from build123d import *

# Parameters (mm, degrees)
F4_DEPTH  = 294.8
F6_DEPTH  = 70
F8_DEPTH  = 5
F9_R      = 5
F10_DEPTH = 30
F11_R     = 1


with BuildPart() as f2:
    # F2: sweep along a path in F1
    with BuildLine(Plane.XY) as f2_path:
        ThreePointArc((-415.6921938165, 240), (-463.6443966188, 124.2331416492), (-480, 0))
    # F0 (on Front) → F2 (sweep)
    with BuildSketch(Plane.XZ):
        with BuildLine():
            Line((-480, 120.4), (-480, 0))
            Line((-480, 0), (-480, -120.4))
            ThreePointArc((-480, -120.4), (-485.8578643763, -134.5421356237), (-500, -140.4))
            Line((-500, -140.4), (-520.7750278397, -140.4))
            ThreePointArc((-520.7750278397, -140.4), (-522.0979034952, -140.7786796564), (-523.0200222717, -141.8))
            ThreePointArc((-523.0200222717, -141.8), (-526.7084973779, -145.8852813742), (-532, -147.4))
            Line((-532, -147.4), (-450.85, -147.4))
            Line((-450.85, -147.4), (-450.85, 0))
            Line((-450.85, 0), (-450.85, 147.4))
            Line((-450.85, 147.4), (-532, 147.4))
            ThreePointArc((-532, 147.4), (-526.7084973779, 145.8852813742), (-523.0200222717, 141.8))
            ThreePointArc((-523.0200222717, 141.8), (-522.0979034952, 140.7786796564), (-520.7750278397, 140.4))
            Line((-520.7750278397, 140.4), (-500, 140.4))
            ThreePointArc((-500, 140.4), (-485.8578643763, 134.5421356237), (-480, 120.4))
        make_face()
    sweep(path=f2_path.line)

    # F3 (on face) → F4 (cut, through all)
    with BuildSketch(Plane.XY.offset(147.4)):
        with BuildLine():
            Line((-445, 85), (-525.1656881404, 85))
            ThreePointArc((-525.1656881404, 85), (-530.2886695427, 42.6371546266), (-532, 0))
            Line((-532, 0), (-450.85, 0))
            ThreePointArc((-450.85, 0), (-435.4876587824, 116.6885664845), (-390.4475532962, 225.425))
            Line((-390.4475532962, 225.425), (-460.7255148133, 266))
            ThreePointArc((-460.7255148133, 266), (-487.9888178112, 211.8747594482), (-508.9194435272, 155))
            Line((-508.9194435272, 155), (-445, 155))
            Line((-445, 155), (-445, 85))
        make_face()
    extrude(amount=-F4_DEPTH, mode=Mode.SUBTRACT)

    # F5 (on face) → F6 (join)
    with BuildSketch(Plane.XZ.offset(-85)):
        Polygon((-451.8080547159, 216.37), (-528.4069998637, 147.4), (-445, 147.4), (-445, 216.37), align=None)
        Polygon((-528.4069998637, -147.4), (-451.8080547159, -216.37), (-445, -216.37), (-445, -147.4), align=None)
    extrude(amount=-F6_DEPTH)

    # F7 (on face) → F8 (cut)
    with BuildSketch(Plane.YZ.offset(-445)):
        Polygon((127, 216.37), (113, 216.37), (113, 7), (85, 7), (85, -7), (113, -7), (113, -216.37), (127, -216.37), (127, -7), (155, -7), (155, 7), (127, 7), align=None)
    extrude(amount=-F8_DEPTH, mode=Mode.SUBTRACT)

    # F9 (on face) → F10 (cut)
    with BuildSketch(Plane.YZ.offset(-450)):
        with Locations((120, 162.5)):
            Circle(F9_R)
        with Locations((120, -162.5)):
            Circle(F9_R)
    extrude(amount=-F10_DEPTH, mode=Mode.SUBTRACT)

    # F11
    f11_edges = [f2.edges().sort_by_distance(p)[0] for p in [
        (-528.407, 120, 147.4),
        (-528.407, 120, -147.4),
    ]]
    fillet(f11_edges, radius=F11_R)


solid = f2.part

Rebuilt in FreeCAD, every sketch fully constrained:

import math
import FreeCAD as App
import Part
import Sketcher
from FreeCAD import Vector
Q = App.Units.Quantity


def edges_at(feature, points):
    """Names of the edges that pass closest to the given points."""
    edges = feature.Shape.Edges
    near = lambda p: min(range(len(edges)), key=lambda i: edges[i].distToShape(Part.Vertex(*p))[0])
    return sorted({f"Edge{near(p) + 1}" for p in points})

doc = App.newDocument("Part")
body = doc.addObject("PartDesign::Body", "Body")

# Sketch on XZ plane
sketch1 = doc.addObject("Sketcher::SketchObject", "Sketch")
body.addObject(sketch1)
sketch1.AttachmentSupport = (doc.XZ_Plane, [""])
sketch1.MapMode = "FlatFace"
sketch1.addGeometry([
    Part.LineSegment(Vector(-480, 120.4, 0), Vector(-480, -120.4, 0)),  # 0
    Part.ArcOfCircle(Part.Circle(Vector(-500, -120.4, 0), Vector(0, 0, 1), 20), math.radians(-90), math.radians(0)),  # 1
    Part.LineSegment(Vector(-500, -140.4, 0), Vector(-520.8, -140.4, 0)),  # 2
    Part.ArcOfCircle(Part.Circle(Vector(-520.8, -142.9, 0), Vector(0, 0, 1), 2.5), math.radians(90), math.radians(154)),  # 3
    Part.ArcOfCircle(Part.Circle(Vector(-532, -137.4, 0), Vector(0, 0, 1), 10), math.radians(-90), math.radians(-26)),  # 4
    Part.LineSegment(Vector(-532, -147.4, 0), Vector(-450.9, -147.4, 0)),  # 5
    Part.LineSegment(Vector(-450.9, -147.4, 0), Vector(-450.9, 147.4, 0)),  # 6
    Part.LineSegment(Vector(-450.9, 147.4, 0), Vector(-532, 147.4, 0)),  # 7
    Part.ArcOfCircle(Part.Circle(Vector(-532, 137.4, 0), Vector(0, 0, 1), 10), math.radians(26), math.radians(90)),  # 8
    Part.ArcOfCircle(Part.Circle(Vector(-520.8, 142.9, 0), Vector(0, 0, 1), 2.5), math.radians(-154), math.radians(-90)),  # 9
    Part.LineSegment(Vector(-520.8, 140.4, 0), Vector(-500, 140.4, 0)),  # 10
    Part.ArcOfCircle(Part.Circle(Vector(-500, 120.4, 0), Vector(0, 0, 1), 20), math.radians(0), math.radians(90)),  # 11
], False)
sketch1.addConstraint([
    Sketcher.Constraint("Tangent", 0, 2, 1, 2),
    Sketcher.Constraint("Tangent", 1, 1, 2, 1),
    Sketcher.Constraint("Tangent", 2, 2, 3, 1),
    Sketcher.Constraint("Tangent", 3, 2, 4, 2),
    Sketcher.Constraint("Tangent", 4, 1, 5, 1),
    Sketcher.Constraint("Coincident", 5, 2, 6, 1),
    Sketcher.Constraint("Coincident", 6, 2, 7, 1),
    Sketcher.Constraint("Tangent", 7, 2, 8, 2),
    Sketcher.Constraint("Tangent", 8, 1, 9, 1),
    Sketcher.Constraint("Tangent", 9, 2, 10, 1),
    Sketcher.Constraint("Tangent", 10, 2, 11, 2),
    Sketcher.Constraint("Tangent", 11, 1, 0, 1),
    Sketcher.Constraint("Vertical", 0),
    Sketcher.Constraint("Horizontal", 2),
    Sketcher.Constraint("Horizontal", 5),
    Sketcher.Constraint("Vertical", 6),
    Sketcher.Constraint("Horizontal", 7),
    Sketcher.Constraint("Horizontal", 10),
    Sketcher.Constraint("Equal", 4, 8),
    Sketcher.Constraint("Equal", 3, 9),
    Sketcher.Constraint("Equal", 1, 11),
    Sketcher.Constraint("Symmetric", 4, 3, 8, 3, -1),
    Sketcher.Constraint("Vertical", 3, 3, 9, 3),
    Sketcher.Constraint("Radius", 1, 20.0),
    Sketcher.Constraint("Radius", 4, 10.0),
    Sketcher.Constraint("Radius", 3, 2.5),
    Sketcher.Constraint("DistanceY", 0, 2, 0, 1, 240.8),
    Sketcher.Constraint("DistanceY", 6, 1, 6, 2, 294.8),
    Sketcher.Constraint("DistanceX", 1, 3, -1, 1, 500.0),
    Sketcher.Constraint("DistanceX", 4, 3, -1, 1, 532.0),
    Sketcher.Constraint("DistanceX", 5, 1, 5, 2, 81.15),
])

# Sketch on XY plane
sketch2 = doc.addObject("Sketcher::SketchObject", "Sketch001")
body.addObject(sketch2)
sketch2.AttachmentSupport = (doc.XY_Plane, [""])
sketch2.MapMode = "FlatFace"
sketch2.addGeometry(Part.ArcOfCircle(Part.Circle(Vector(0, 0, 0), Vector(0, 0, 1), 480), math.radians(150), math.radians(180)), False)
sketch2.addConstraint([
    Sketcher.Constraint("Coincident", 0, 3, -1, 1),
    Sketcher.Constraint("PointOnObject", 0, 2, -1),
    Sketcher.Constraint("Radius", 0, 480.0),
    Sketcher.Constraint("DistanceY", -1, 1, 0, 1, 240.0),
])
doc.recompute()

additivepipe = doc.addObject("PartDesign::AdditivePipe", "AdditivePipe")
body.addObject(additivepipe)
additivepipe.Profile = sketch1
additivepipe.Spine = (sketch2, ["Edge1"])

# Sketch on XY plane
sketch3 = doc.addObject("Sketcher::SketchObject", "Sketch002")
body.addObject(sketch3)
sketch3.AttachmentSupport = (doc.XY_Plane, [""])
sketch3.MapMode = "FlatFace"
sketch3.AttachmentOffset = App.Placement(Vector(0, 0, 147.4), App.Rotation())
sketch3.addGeometry([
    Part.LineSegment(Vector(-445, 85, 0), Vector(-525, 85, 0)),  # 0
    Part.ArcOfCircle(Part.Circle(Vector(0, 0, 0), Vector(0, 0, 1), 532), math.radians(170.81), math.radians(180)),  # 1
    Part.LineSegment(Vector(-532, 0, 0), Vector(-451, 0, 0)),  # 2
    Part.ArcOfCircle(Part.Circle(Vector(0, 0, 0), Vector(0, 0, 1), 451), math.radians(150), math.radians(180)),  # 3
    Part.LineSegment(Vector(-390, 225, 0), Vector(-461, 266, 0)),  # 4
    Part.ArcOfCircle(Part.Circle(Vector(0, 0, 0), Vector(0, 0, 1), 532), math.radians(150), math.radians(163.06)),  # 5
    Part.LineSegment(Vector(-509, 155, 0), Vector(-445, 155, 0)),  # 6
    Part.LineSegment(Vector(-445, 155, 0), Vector(-445, 85, 0)),  # 7
], False)
sketch3.addConstraint([
    Sketcher.Constraint("Coincident", 0, 2, 1, 1),
    Sketcher.Constraint("Coincident", 1, 2, 2, 1),
    Sketcher.Constraint("Coincident", 2, 2, 3, 2),
    Sketcher.Constraint("Coincident", 3, 1, 4, 1),
    Sketcher.Constraint("Coincident", 4, 2, 5, 1),
    Sketcher.Constraint("Coincident", 5, 2, 6, 1),
    Sketcher.Constraint("Coincident", 6, 2, 7, 1),
    Sketcher.Constraint("Coincident", 7, 2, 0, 1),
    Sketcher.Constraint("Horizontal", 0),
    Sketcher.Constraint("Horizontal", 2),
    Sketcher.Constraint("Horizontal", 6),
    Sketcher.Constraint("Vertical", 7),
    Sketcher.Constraint("Coincident", 1, 3, -1, 1),
    Sketcher.Constraint("Coincident", 3, 3, -1, 1),
    Sketcher.Constraint("Coincident", 5, 3, -1, 1),
    Sketcher.Constraint("Equal", 1, 5),
    Sketcher.Constraint("PointOnObject", 2, 2, -1),
    Sketcher.Constraint("Radius", 1, 532.0),
    Sketcher.Constraint("DistanceY", 7, 2, 7, 1, 70.0),
    Sketcher.Constraint("Angle", 4, Q("150 deg")),
    Sketcher.Constraint("Radius", 3, 450.85),
    Sketcher.Constraint("DistanceY", -1, 1, 0, 2, 85.0),
    Sketcher.Constraint("DistanceY", -1, 1, 4, 2, 266.0),
    Sketcher.Constraint("DistanceX", 6, 2, -1, 1, 445.0),
])
pocket1 = doc.addObject("PartDesign::Pocket", "Pocket")
body.addObject(pocket1)
pocket1.Profile = sketch3
pocket1.Type = "ThroughAll"

# Sketch on XZ plane
sketch4 = doc.addObject("Sketcher::SketchObject", "Sketch003")
body.addObject(sketch4)
sketch4.AttachmentSupport = (doc.XZ_Plane, [""])
sketch4.MapMode = "FlatFace"
sketch4.AttachmentOffset = App.Placement(Vector(0, 0, -85), App.Rotation())
sketch4.addGeometry([
    Part.LineSegment(Vector(-452, 216, 0), Vector(-528, 147, 0)),  # 0
    Part.LineSegment(Vector(-528, 147, 0), Vector(-445, 147, 0)),  # 1
    Part.LineSegment(Vector(-445, 147, 0), Vector(-445, 216, 0)),  # 2
    Part.LineSegment(Vector(-445, 216, 0), Vector(-452, 216, 0)),  # 3
    Part.LineSegment(Vector(-528, -147, 0), Vector(-452, -216, 0)),  # 4
    Part.LineSegment(Vector(-452, -216, 0), Vector(-445, -216, 0)),  # 5
    Part.LineSegment(Vector(-445, -216, 0), Vector(-445, -147, 0)),  # 6
    Part.LineSegment(Vector(-445, -147, 0), Vector(-528, -147, 0)),  # 7
], False)
sketch4.addConstraint([
    Sketcher.Constraint("Coincident", 0, 2, 1, 1),
    Sketcher.Constraint("Coincident", 1, 2, 2, 1),
    Sketcher.Constraint("Coincident", 2, 2, 3, 1),
    Sketcher.Constraint("Coincident", 3, 2, 0, 1),
    Sketcher.Constraint("Coincident", 4, 2, 5, 1),
    Sketcher.Constraint("Coincident", 5, 2, 6, 1),
    Sketcher.Constraint("Coincident", 6, 2, 7, 1),
    Sketcher.Constraint("Coincident", 7, 2, 4, 1),
    Sketcher.Constraint("Horizontal", 1),
    Sketcher.Constraint("Vertical", 2),
    Sketcher.Constraint("Horizontal", 3),
    Sketcher.Constraint("Horizontal", 5),
    Sketcher.Constraint("Vertical", 6),
    Sketcher.Constraint("Horizontal", 7),
    Sketcher.Constraint("Symmetric", 3, 2, 4, 2, -1),
    Sketcher.Constraint("Symmetric", 1, 2, 6, 2, -1),
    Sketcher.Constraint("Vertical", 0, 2, 7, 2),
    Sketcher.Constraint("Angle", 0, Q("-138 deg")),
    Sketcher.Constraint("DistanceX", 1, 2, -1, 1, 445.0),
    Sketcher.Constraint("DistanceY", 2, 1, 2, 2, 68.97),
    Sketcher.Constraint("DistanceY", -1, 1, 0, 2, 147.4),
    Sketcher.Constraint("DistanceX", 1, 1, 1, 2, 83.407),
])
pad1 = doc.addObject("PartDesign::Pad", "Pad")
body.addObject(pad1)
pad1.Profile = sketch4
pad1.Length = 70
pad1.Reversed = True

# Sketch on YZ plane
sketch5 = doc.addObject("Sketcher::SketchObject", "Sketch004")
body.addObject(sketch5)
sketch5.AttachmentSupport = (doc.YZ_Plane, [""])
sketch5.MapMode = "FlatFace"
sketch5.AttachmentOffset = App.Placement(Vector(0, 0, -445), App.Rotation())
sketch5.addGeometry([
    Part.LineSegment(Vector(127, 216, 0), Vector(113, 216, 0)),  # 0
    Part.LineSegment(Vector(113, 216, 0), Vector(113, 7, 0)),  # 1
    Part.LineSegment(Vector(113, 7, 0), Vector(85, 7, 0)),  # 2
    Part.LineSegment(Vector(85, 7, 0), Vector(85, -7, 0)),  # 3
    Part.LineSegment(Vector(85, -7, 0), Vector(113, -7, 0)),  # 4
    Part.LineSegment(Vector(113, -7, 0), Vector(113, -216, 0)),  # 5
    Part.LineSegment(Vector(113, -216, 0), Vector(127, -216, 0)),  # 6
    Part.LineSegment(Vector(127, -216, 0), Vector(127, -7, 0)),  # 7
    Part.LineSegment(Vector(127, -7, 0), Vector(155, -7, 0)),  # 8
    Part.LineSegment(Vector(155, -7, 0), Vector(155, 7, 0)),  # 9
    Part.LineSegment(Vector(155, 7, 0), Vector(127, 7, 0)),  # 10
    Part.LineSegment(Vector(127, 7, 0), Vector(127, 216, 0)),  # 11
], False)
sketch5.addConstraint([
    Sketcher.Constraint("Coincident", 0, 2, 1, 1),
    Sketcher.Constraint("Coincident", 1, 2, 2, 1),
    Sketcher.Constraint("Coincident", 2, 2, 3, 1),
    Sketcher.Constraint("Coincident", 3, 2, 4, 1),
    Sketcher.Constraint("Coincident", 4, 2, 5, 1),
    Sketcher.Constraint("Coincident", 5, 2, 6, 1),
    Sketcher.Constraint("Coincident", 6, 2, 7, 1),
    Sketcher.Constraint("Coincident", 7, 2, 8, 1),
    Sketcher.Constraint("Coincident", 8, 2, 9, 1),
    Sketcher.Constraint("Coincident", 9, 2, 10, 1),
    Sketcher.Constraint("Coincident", 10, 2, 11, 1),
    Sketcher.Constraint("Coincident", 11, 2, 0, 1),
    Sketcher.Constraint("Horizontal", 0),
    Sketcher.Constraint("Vertical", 1),
    Sketcher.Constraint("Horizontal", 2),
    Sketcher.Constraint("Vertical", 3),
    Sketcher.Constraint("Horizontal", 4),
    Sketcher.Constraint("Vertical", 5),
    Sketcher.Constraint("Horizontal", 6),
    Sketcher.Constraint("Vertical", 7),
    Sketcher.Constraint("Horizontal", 8),
    Sketcher.Constraint("Vertical", 9),
    Sketcher.Constraint("Horizontal", 10),
    Sketcher.Constraint("Vertical", 11),
    Sketcher.Constraint("Symmetric", 1, 2, 4, 2, -1),
    Sketcher.Constraint("Symmetric", 7, 2, 10, 2, -1),
    Sketcher.Constraint("Horizontal", 4, 2, 7, 2),
    Sketcher.Constraint("Equal", 4, 8),
    Sketcher.Constraint("Equal", 6, 3),
    Sketcher.Constraint("Equal", 1, 5),
    Sketcher.Constraint("DistanceX", 0, 2, 0, 1, 14.0),
    Sketcher.Constraint("DistanceX", 2, 2, 2, 1, 28.0),
    Sketcher.Constraint("DistanceX", -1, 1, 0, 2, 113.0),
    Sketcher.Constraint("DistanceY", 1, 2, 1, 1, 209.37),
])
pocket2 = doc.addObject("PartDesign::Pocket", "Pocket001")
body.addObject(pocket2)
pocket2.Profile = sketch5
pocket2.Length = 5

# Sketch on YZ plane
sketch6 = doc.addObject("Sketcher::SketchObject", "Sketch005")
body.addObject(sketch6)
sketch6.AttachmentSupport = (doc.YZ_Plane, [""])
sketch6.MapMode = "FlatFace"
sketch6.AttachmentOffset = App.Placement(Vector(0, 0, -450), App.Rotation())
sketch6.addGeometry([
    Part.Circle(Vector(120, 162, 0), Vector(0, 0, 1), 5),
    Part.Circle(Vector(120, -162, 0), Vector(0, 0, 1), 5),
], False)
sketch6.addConstraint([
    Sketcher.Constraint("Equal", 0, 1),
    Sketcher.Constraint("Symmetric", 0, 3, 1, 3, -1),
    Sketcher.Constraint("Diameter", 0, 10.0),
    Sketcher.Constraint("DistanceX", -1, 1, 0, 3, 120.0),
    Sketcher.Constraint("DistanceY", 1, 3, 0, 3, 325.0),
])
pocket3 = doc.addObject("PartDesign::Pocket", "Pocket002")
body.addObject(pocket3)
pocket3.Profile = sketch6
pocket3.Length = 30
doc.recompute()

fillet = doc.addObject("PartDesign::Fillet", "Fillet")
body.addObject(fillet)
fillet.Base = (pocket3, edges_at(pocket3, [(-528.407, 120, 147.4), (-528.407, 120, -147.4)]))
fillet.Radius = 1

doc.recompute()
